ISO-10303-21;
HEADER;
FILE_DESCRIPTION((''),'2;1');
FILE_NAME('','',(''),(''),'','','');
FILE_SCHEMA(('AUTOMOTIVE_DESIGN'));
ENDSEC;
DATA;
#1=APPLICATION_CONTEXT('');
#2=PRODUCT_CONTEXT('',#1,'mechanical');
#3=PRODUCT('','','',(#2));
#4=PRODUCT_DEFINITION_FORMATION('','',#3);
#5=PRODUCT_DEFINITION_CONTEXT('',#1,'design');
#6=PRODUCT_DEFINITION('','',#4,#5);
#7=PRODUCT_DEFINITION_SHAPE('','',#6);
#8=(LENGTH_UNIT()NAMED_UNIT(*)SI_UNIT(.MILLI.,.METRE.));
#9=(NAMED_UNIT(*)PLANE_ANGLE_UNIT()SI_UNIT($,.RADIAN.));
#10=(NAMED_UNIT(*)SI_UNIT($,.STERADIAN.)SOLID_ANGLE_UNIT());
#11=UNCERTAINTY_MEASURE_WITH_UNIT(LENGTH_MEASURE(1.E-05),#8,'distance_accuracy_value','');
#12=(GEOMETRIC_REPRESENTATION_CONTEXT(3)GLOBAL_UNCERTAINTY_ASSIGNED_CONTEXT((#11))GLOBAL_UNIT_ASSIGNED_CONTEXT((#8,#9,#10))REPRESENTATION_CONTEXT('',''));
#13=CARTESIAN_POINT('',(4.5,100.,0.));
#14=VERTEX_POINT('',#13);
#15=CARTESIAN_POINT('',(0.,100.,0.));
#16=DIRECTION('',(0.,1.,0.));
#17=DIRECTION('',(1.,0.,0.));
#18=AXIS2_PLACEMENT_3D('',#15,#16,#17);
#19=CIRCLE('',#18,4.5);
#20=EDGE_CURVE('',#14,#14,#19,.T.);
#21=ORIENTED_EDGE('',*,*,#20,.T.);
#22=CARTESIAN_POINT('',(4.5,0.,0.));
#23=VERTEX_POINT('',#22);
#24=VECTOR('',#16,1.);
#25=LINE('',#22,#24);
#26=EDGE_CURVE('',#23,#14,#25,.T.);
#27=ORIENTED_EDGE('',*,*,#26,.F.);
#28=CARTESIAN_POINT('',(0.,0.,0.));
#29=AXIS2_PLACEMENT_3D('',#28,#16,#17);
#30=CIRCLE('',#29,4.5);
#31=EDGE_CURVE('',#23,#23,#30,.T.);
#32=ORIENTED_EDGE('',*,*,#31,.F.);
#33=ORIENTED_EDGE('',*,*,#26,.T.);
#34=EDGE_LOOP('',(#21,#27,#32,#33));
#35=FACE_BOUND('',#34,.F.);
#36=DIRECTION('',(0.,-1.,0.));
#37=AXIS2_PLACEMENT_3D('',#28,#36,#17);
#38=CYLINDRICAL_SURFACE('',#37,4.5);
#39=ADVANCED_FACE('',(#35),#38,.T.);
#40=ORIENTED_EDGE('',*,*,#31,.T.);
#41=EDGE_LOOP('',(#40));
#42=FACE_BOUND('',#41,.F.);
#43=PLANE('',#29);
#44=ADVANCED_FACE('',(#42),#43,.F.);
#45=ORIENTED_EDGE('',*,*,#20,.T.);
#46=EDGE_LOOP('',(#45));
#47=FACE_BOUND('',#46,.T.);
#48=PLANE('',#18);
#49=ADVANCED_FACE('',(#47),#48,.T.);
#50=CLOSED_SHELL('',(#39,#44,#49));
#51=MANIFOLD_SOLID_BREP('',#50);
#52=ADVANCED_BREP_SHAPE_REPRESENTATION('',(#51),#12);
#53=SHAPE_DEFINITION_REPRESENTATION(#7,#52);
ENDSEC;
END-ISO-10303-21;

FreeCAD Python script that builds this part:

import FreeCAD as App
import Part
import Sketcher

doc = App.newDocument("Part")
body = doc.addObject("PartDesign::Body", "Body")

sketch1 = doc.addObject("Sketcher::SketchObject", "Sketch")
body.addObject(sketch1)
sketch1.AttachmentSupport = (doc.XZ_Plane, [""])
sketch1.MapMode = "FlatFace"
sketch1.addGeometry(Part.Circle(App.Vector(0, 0, 0), App.Vector(0, 0, 1), 4.5), False)
sketch1.addConstraint([
    Sketcher.Constraint("Coincident", 0, 3, -1, 1),
    Sketcher.Constraint("Diameter", 0, 9.0),
])
pad1 = doc.addObject("PartDesign::Pad", "Pad")
body.addObject(pad1)
pad1.Profile = sketch1
pad1.Length = 100
pad1.Reversed = True

doc.recompute()
